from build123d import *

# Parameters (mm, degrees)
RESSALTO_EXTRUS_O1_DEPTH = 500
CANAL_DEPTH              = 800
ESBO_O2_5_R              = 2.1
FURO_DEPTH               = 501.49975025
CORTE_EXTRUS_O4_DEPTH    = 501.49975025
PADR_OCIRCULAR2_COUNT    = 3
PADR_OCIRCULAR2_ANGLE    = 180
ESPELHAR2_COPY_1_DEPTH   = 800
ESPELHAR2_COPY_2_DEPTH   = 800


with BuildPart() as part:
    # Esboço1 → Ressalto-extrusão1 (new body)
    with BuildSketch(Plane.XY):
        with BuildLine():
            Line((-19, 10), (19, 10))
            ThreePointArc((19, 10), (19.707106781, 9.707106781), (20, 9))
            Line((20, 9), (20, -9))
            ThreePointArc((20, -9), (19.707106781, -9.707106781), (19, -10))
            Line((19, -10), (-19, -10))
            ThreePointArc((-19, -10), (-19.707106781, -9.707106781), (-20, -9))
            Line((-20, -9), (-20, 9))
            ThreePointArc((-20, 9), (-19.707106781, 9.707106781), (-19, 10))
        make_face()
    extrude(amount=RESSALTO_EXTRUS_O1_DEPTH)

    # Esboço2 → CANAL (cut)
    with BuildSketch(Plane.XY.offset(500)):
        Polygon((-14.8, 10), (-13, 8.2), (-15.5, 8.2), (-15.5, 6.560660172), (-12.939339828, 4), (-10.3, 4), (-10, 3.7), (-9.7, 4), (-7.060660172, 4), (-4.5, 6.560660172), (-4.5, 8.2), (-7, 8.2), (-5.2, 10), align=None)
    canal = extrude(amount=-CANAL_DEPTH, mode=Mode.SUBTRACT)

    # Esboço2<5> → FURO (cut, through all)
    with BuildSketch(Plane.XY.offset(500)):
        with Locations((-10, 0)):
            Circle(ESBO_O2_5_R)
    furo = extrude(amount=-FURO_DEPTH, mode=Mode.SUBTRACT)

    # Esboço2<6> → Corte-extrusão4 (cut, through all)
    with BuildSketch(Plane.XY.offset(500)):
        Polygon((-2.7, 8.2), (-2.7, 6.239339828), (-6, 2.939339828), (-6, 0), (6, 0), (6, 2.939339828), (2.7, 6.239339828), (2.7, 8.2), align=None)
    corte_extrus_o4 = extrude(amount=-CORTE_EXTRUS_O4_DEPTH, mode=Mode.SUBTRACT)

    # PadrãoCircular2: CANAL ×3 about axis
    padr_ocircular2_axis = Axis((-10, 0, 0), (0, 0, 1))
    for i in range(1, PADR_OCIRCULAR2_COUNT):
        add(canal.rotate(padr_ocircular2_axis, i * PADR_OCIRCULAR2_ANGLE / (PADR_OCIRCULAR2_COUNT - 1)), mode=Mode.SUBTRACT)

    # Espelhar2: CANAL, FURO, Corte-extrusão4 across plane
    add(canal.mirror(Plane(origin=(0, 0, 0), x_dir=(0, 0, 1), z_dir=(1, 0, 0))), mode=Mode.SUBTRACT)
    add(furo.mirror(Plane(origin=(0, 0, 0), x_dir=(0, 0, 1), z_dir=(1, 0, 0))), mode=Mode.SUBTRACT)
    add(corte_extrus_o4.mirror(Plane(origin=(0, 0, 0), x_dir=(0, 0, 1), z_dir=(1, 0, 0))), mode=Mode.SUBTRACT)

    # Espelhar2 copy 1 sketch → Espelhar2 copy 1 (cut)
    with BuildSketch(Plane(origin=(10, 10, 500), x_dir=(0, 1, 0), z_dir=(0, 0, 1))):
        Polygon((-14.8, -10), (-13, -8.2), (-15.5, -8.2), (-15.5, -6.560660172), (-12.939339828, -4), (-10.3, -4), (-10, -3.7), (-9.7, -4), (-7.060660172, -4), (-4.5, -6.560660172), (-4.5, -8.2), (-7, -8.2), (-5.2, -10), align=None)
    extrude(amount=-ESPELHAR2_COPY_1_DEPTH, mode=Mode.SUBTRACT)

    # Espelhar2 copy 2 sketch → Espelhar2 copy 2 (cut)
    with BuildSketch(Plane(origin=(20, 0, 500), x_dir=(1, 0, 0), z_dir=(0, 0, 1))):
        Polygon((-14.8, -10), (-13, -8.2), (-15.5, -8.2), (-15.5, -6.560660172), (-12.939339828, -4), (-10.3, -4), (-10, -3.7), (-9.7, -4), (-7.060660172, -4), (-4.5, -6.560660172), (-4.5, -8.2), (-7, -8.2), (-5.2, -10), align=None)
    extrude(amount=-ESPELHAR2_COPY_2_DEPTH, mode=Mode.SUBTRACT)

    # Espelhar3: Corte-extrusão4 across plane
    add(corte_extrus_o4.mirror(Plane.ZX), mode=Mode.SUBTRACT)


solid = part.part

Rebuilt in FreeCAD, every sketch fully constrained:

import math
import FreeCAD as App
import Part
import Sketcher
from FreeCAD import Vector
Q = App.Units.Quantity

doc = App.newDocument("Part")
params = doc.addObject("Spreadsheet::Sheet", "Params")
for row, (alias, value) in enumerate([
    ("sketch1_radius", "1 mm"),
    ("sketch1_width", "38 mm"),
    ("sketch1_height", "18 mm"),
    ("pad1_length", "500 mm"),
    ("sketch2_width", "2.5 mm"),
    ("sketch2_width2", "9.6 mm"),
    ("pocket1_length", "800 mm"),
    ("sketch3_diameter", "4.2 mm"),
    ("sketch4_width", "12 mm"),
    ("sketch4_width2", "5.4 mm"),
    ("sketch5_height", "9.6 mm"),
    ("sketch5_height2", "2.5 mm"),
    ("pocket4_length", "800 mm"),
    ("sketch6_width", "9.6 mm"),
    ("sketch6_width2", "2.5 mm"),
    ("pocket5_length", "800 mm"),
], start=1):
    params.set(f"A{row}", alias)
    params.set(f"B{row}", "=" + value)
    params.setAlias(f"B{row}", alias)

body = doc.addObject("PartDesign::Body", "Body")

# Sketch on XY plane
sketch1 = body.newObject("Sketcher::SketchObject", "Sketch")
sketch1.AttachmentSupport = (doc.getObject("XY_Plane"), [""])
sketch1.MapMode = "FlatFace"
sketch1.addGeometry([
    Part.LineSegment(Vector(19, 10, 0), Vector(-19, 10, 0)),  # 0
    Part.ArcOfCircle(Part.Circle(Vector(-19, 9, 0), Vector(0, 0, 1), 1), math.radians(90), math.radians(180)),  # 1
    Part.LineSegment(Vector(-20, 9, 0), Vector(-20, -9, 0)),  # 2
    Part.ArcOfCircle(Part.Circle(Vector(-19, -9, 0), Vector(0, 0, 1), 1), math.radians(-180), math.radians(-90)),  # 3
    Part.LineSegment(Vector(-19, -10, 0), Vector(19, -10, 0)),  # 4
    Part.ArcOfCircle(Part.Circle(Vector(19, -9, 0), Vector(0, 0, 1), 1), math.radians(-90), math.radians(0)),  # 5
    Part.LineSegment(Vector(20, -9, 0), Vector(20, 9, 0)),  # 6
    Part.ArcOfCircle(Part.Circle(Vector(19, 9, 0), Vector(0, 0, 1), 1), math.radians(0), math.radians(90)),  # 7
], False)
sketch1.addConstraint([
    Sketcher.Constraint("Tangent", 0, 2, 1, 1),
    Sketcher.Constraint("Tangent", 1, 2, 2, 1),
    Sketcher.Constraint("Tangent", 2, 2, 3, 1),
    Sketcher.Constraint("Tangent", 3, 2, 4, 1),
    Sketcher.Constraint("Tangent", 4, 2, 5, 1),
    Sketcher.Constraint("Tangent", 5, 2, 6, 1),
    Sketcher.Constraint("Tangent", 6, 2, 7, 1),
    Sketcher.Constraint("Tangent", 7, 2, 0, 1),
    Sketcher.Constraint("Horizontal", 0),
    Sketcher.Constraint("Vertical", 2),
    Sketcher.Constraint("Horizontal", 4),
    Sketcher.Constraint("Vertical", 6),
    Sketcher.Constraint("Equal", 1, 3),
    Sketcher.Constraint("Equal", 3, 5),
    Sketcher.Constraint("Equal", 5, 7),
    Sketcher.Constraint("Symmetric", 1, 3, 5, 3, -1, 1),
    Sketcher.Constraint("Radius", 1, Q("1 mm")),
    Sketcher.Constraint("DistanceX", 0, 2, 0, 1, Q("38 mm")),
    Sketcher.Constraint("DistanceY", 2, 2, 2, 1, Q("18 mm")),
])
sketch1.setExpression("Constraints[16]", "Params.sketch1_radius")
sketch1.setExpression("Constraints[17]", "Params.sketch1_width")
sketch1.setExpression("Constraints[18]", "Params.sketch1_height")
pad1 = body.newObject("PartDesign::Pad", "Pad")
pad1.Profile = sketch1
pad1.setExpression("Length", "Params.pad1_length")

# Sketch on XY plane
sketch2 = body.newObject("Sketcher::SketchObject", "Sketch001")
sketch2.AttachmentSupport = (doc.getObject("XY_Plane"), [""])
sketch2.MapMode = "FlatFace"
sketch2.AttachmentOffset = App.Placement(Vector(0, 0, 500), App.Rotation())
sketch2.addGeometry([
    Part.LineSegment(Vector(-14.8, 10, 0), Vector(-13, 8.2, 0)),  # 0
    Part.LineSegment(Vector(-13, 8.2, 0), Vector(-15.5, 8.2, 0)),  # 1
    Part.LineSegment(Vector(-15.5, 8.2, 0), Vector(-15.5, 6.56066, 0)),  # 2
    Part.LineSegment(Vector(-15.5, 6.56066, 0), Vector(-12.93934, 4, 0)),  # 3
    Part.LineSegment(Vector(-12.93934, 4, 0), Vector(-10.3, 4, 0)),  # 4
    Part.LineSegment(Vector(-10.3, 4, 0), Vector(-10, 3.7, 0)),  # 5
    Part.LineSegment(Vector(-10, 3.7, 0), Vector(-9.7, 4, 0)),  # 6
    Part.LineSegment(Vector(-9.7, 4, 0), Vector(-7.06066, 4, 0)),  # 7
    Part.LineSegment(Vector(-7.06066, 4, 0), Vector(-4.5, 6.56066, 0)),  # 8
    Part.LineSegment(Vector(-4.5, 6.56066, 0), Vector(-4.5, 8.2, 0)),  # 9
    Part.LineSegment(Vector(-4.5, 8.2, 0), Vector(-7, 8.2, 0)),  # 10
    Part.LineSegment(Vector(-7, 8.2, 0), Vector(-5.2, 10, 0)),  # 11
    Part.LineSegment(Vector(-5.2, 10, 0), Vector(-14.8, 10, 0)),  # 12
], False)
sketch2.addConstraint([
    Sketcher.Constraint("Coincident", 0, 2, 1, 1),
    Sketcher.Constraint("Coincident", 1, 2, 2, 1),
    Sketcher.Constraint("Coincident", 2, 2, 3, 1),
    Sketcher.Constraint("Coincident", 3, 2, 4, 1),
    Sketcher.Constraint("Coincident", 4, 2, 5, 1),
    Sketcher.Constraint("Coincident", 5, 2, 6, 1),
    Sketcher.Constraint("Coincident", 6, 2, 7, 1),
    Sketcher.Constraint("Coincident", 7, 2, 8, 1),
    Sketcher.Constraint("Coincident", 8, 2, 9, 1),
    Sketcher.Constraint("Coincident", 9, 2, 10, 1),
    Sketcher.Constraint("Coincident", 10, 2, 11, 1),
    Sketcher.Constraint("Coincident", 11, 2, 12, 1),
    Sketcher.Constraint("Coincident", 12, 2, 0, 1),
    Sketcher.Constraint("Horizontal", 1),
    Sketcher.Constraint("Vertical", 2),
    Sketcher.Constraint("Horizontal", 4),
    Sketcher.Constraint("Horizontal", 7),
    Sketcher.Constraint("Vertical", 9),
    Sketcher.Constraint("Horizontal", 10),
    Sketcher.Constraint("Horizontal", 12),
    Sketcher.Constraint("Parallel", 0, 3),
    Sketcher.Constraint("Parallel", 3, 5),
    Sketcher.Constraint("Perpendicular", 5, 6),
    Sketcher.Constraint("Parallel", 6, 8),
    Sketcher.Constraint("Parallel", 8, 11),
    Sketcher.Constraint("Horizontal", 4, 2, 6, 2),
    Sketcher.Constraint("Horizontal", 2, 2, 8, 2),
    Sketcher.Constraint("Horizontal", 1, 2, 9, 2),
    Sketcher.Constraint("Equal", 4, 7),
    Sketcher.Constraint("Equal", 1, 10),
    Sketcher.Constraint("Equal", 5, 6),
    Sketcher.Constraint("DistanceX", 1, 2, 1, 1, Q("2.5 mm")),
    Sketcher.Constraint("DistanceX", 12, 2, 12, 1, Q("9.6 mm")),
    Sketcher.Constraint("DistanceX", 0, 2, -1, 1, Q("13 mm")),
    Sketcher.Constraint("DistanceY", -1, 1, 3, 2, Q("4 mm")),
    Sketcher.Constraint("DistanceX", 5, 2, -1, 1, Q("10 mm")),
    Sketcher.Constraint("DistanceY", -1, 1, 11, 2, Q("10 mm")),
    Sketcher.Constraint("DistanceX", 4, 2, -1, 1, Q("10.3 mm")),
    Sketcher.Constraint("DistanceX", 4, 1, 4, 2, Q("2.63934 mm")),
])
sketch2.setExpression("Constraints[31]", "Params.sketch2_width")
sketch2.setExpression("Constraints[32]", "Params.sketch2_width2")
pocket1 = body.newObject("PartDesign::Pocket", "Pocket")
pocket1.Profile = sketch2
pocket1.setExpression("Length", "Params.pocket1_length")

# Sketch on XY plane
sketch3 = body.newObject("Sketcher::SketchObject", "Sketch002")
sketch3.AttachmentSupport = (doc.getObject("XY_Plane"), [""])
sketch3.MapMode = "FlatFace"
sketch3.AttachmentOffset = App.Placement(Vector(0, 0, 500), App.Rotation())
sketch3.addGeometry(Part.Circle(Vector(-10, 0, 0), Vector(0, 0, 1), 2.1), False)
sketch3.addConstraint([
    Sketcher.Constraint("PointOnObject", 0, 3, -1),
    Sketcher.Constraint("Diameter", 0, Q("4.2 mm")),
    Sketcher.Constraint("DistanceX", 0, 3, -1, 1, Q("10 mm")),
])
sketch3.setExpression("Constraints[1]", "Params.sketch3_diameter")
pocket2 = body.newObject("PartDesign::Pocket", "Pocket001")
pocket2.Profile = sketch3
pocket2.Type = "ThroughAll"

# Sketch on XY plane
sketch4 = body.newObject("Sketcher::SketchObject", "Sketch003")
sketch4.AttachmentSupport = (doc.getObject("XY_Plane"), [""])
sketch4.MapMode = "FlatFace"
sketch4.AttachmentOffset = App.Placement(Vector(0, 0, 500), App.Rotation())
sketch4.addGeometry([
    Part.LineSegment(Vector(-2.7, 8.2, 0), Vector(-2.7, 6.23934, 0)),  # 0
    Part.LineSegment(Vector(-2.7, 6.23934, 0), Vector(-6, 2.93934, 0)),  # 1
    Part.LineSegment(Vector(-6, 2.93934, 0), Vector(-6, 0, 0)),  # 2
    Part.LineSegment(Vector(-6, 0, 0), Vector(6, 0, 0)),  # 3
    Part.LineSegment(Vector(6, 0, 0), Vector(6, 2.93934, 0)),  # 4
    Part.LineSegment(Vector(6, 2.93934, 0), Vector(2.7, 6.23934, 0)),  # 5
    Part.LineSegment(Vector(2.7, 6.23934, 0), Vector(2.7, 8.2, 0)),  # 6
    Part.LineSegment(Vector(2.7, 8.2, 0), Vector(-2.7, 8.2, 0)),  # 7
], False)
sketch4.addConstraint([
    Sketcher.Constraint("Coincident", 0, 2, 1, 1),
    Sketcher.Constraint("Coincident", 1, 2, 2, 1),
    Sketcher.Constraint("Coincident", 2, 2, 3, 1),
    Sketcher.Constraint("Coincident", 3, 2, 4, 1),
    Sketcher.Constraint("Coincident", 4, 2, 5, 1),
    Sketcher.Constraint("Coincident", 5, 2, 6, 1),
    Sketcher.Constraint("Coincident", 6, 2, 7, 1),
    Sketcher.Constraint("Coincident", 7, 2, 0, 1),
    Sketcher.Constraint("Vertical", 0),
    Sketcher.Constraint("Vertical", 2),
    Sketcher.Constraint("Horizontal", 3),
    Sketcher.Constraint("Vertical", 4),
    Sketcher.Constraint("Vertical", 6),
    Sketcher.Constraint("Horizontal", 7),
    Sketcher.Constraint("Symmetric", 2, 2, 3, 2, -1, 1),
    Sketcher.Constraint("Symmetric", 0, 2, 5, 2, -2),
    Sketcher.Constraint("Perpendicular", 1, 5),
    Sketcher.Constraint("Horizontal", 1, 2, 4, 2),
    Sketcher.Constraint("DistanceX", 3, 1, 3, 2, Q("12 mm")),
    Sketcher.Constraint("DistanceX", 7, 2, 7, 1, Q("5.4 mm")),
    Sketcher.Constraint("DistanceY", -1, 1, 6, 2, Q("8.2 mm")),
    Sketcher.Constraint("DistanceY", 0, 2, 0, 1, Q("1.96066 mm")),
])
sketch4.setExpression("Constraints[18]", "Params.sketch4_width")
sketch4.setExpression("Constraints[19]", "Params.sketch4_width2")
pocket3 = body.newObject("PartDesign::Pocket", "Pocket002")
pocket3.Profile = sketch4
pocket3.Type = "ThroughAll"
doc.recompute()

datumline = body.newObject("PartDesign::Line", "DatumLine")
datumline.Placement = App.Placement(Vector(-10, 0, 0), App.Rotation(Vector(0, 0, 1), Vector(0, 0, 1)))
polarpattern = body.newObject("PartDesign::PolarPattern", "PolarPattern")
polarpattern.Originals = [pocket1]
polarpattern.Axis = (datumline, [""])
polarpattern.Angle = 180
polarpattern.Occurrences = 3
body.Tip = polarpattern
doc.recompute()

mirrored = body.newObject("PartDesign::Mirrored", "Mirrored")
mirrored.Originals = [pocket1, pocket2, pocket3]
mirrored.MirrorPlane = (doc.getObject("YZ_Plane"), [""])
body.Tip = mirrored

# Sketch on XY plane
sketch5 = body.newObject("Sketcher::SketchObject", "Sketch004")
sketch5.AttachmentSupport = (doc.getObject("XY_Plane"), [""])
sketch5.MapMode = "FlatFace"
sketch5.AttachmentOffset = App.Placement(Vector(0, 0, 500), App.Rotation())
sketch5.addGeometry([
    Part.LineSegment(Vector(18.2, -3, 0), Vector(20, -4.8, 0)),  # 0
    Part.LineSegment(Vector(20, -4.8, 0), Vector(20, 4.8, 0)),  # 1
    Part.LineSegment(Vector(20, 4.8, 0), Vector(18.2, 3, 0)),  # 2
    Part.LineSegment(Vector(18.2, 3, 0), Vector(18.2, 5.5, 0)),  # 3
    Part.LineSegment(Vector(18.2, 5.5, 0), Vector(16.56066, 5.5, 0)),  # 4
    Part.LineSegment(Vector(16.56066, 5.5, 0), Vector(14, 2.93934, 0)),  # 5
    Part.LineSegment(Vector(14, 2.93934, 0), Vector(14, 0.3, 0)),  # 6
    Part.LineSegment(Vector(14, 0.3, 0), Vector(13.7, 0, 0)),  # 7
    Part.LineSegment(Vector(13.7, 0, 0), Vector(14, -0.3, 0)),  # 8
    Part.LineSegment(Vector(14, -0.3, 0), Vector(14, -2.93934, 0)),  # 9
    Part.LineSegment(Vector(14, -2.93934, 0), Vector(16.56066, -5.5, 0)),  # 10
    Part.LineSegment(Vector(16.56066, -5.5, 0), Vector(18.2, -5.5, 0)),  # 11
    Part.LineSegment(Vector(18.2, -5.5, 0), Vector(18.2, -3, 0)),  # 12
], False)
sketch5.addConstraint([
    Sketcher.Constraint("Coincident", 0, 2, 1, 1),
    Sketcher.Constraint("Coincident", 1, 2, 2, 1),
    Sketcher.Constraint("Coincident", 2, 2, 3, 1),
    Sketcher.Constraint("Coincident", 3, 2, 4, 1),
    Sketcher.Constraint("Coincident", 4, 2, 5, 1),
    Sketcher.Constraint("Coincident", 5, 2, 6, 1),
    Sketcher.Constraint("Coincident", 6, 2, 7, 1),
    Sketcher.Constraint("Coincident", 7, 2, 8, 1),
    Sketcher.Constraint("Coincident", 8, 2, 9, 1),
    Sketcher.Constraint("Coincident", 9, 2, 10, 1),
    Sketcher.Constraint("Coincident", 10, 2, 11, 1),
    Sketcher.Constraint("Coincident", 11, 2, 12, 1),
    Sketcher.Constraint("Coincident", 12, 2, 0, 1),
    Sketcher.Constraint("Vertical", 1),
    Sketcher.Constraint("Vertical", 3),
    Sketcher.Constraint("Horizontal", 4),
    Sketcher.Constraint("Vertical", 6),
    Sketcher.Constraint("Vertical", 9),
    Sketcher.Constraint("Horizontal", 11),
    Sketcher.Constraint("Vertical", 12),
    Sketcher.Constraint("Symmetric", 6, 2, 8, 2, -1),
    Sketcher.Constraint("Symmetric", 4, 2, 10, 2, -1),
    Sketcher.Constraint("Symmetric", 2, 2, 12, 2, -1),
    Sketcher.Constraint("PointOnObject", 7, 2, -1),
    Sketcher.Constraint("Perpendicular", 0, 2),
    Sketcher.Constraint("Parallel", 2, 5),
    Sketcher.Constraint("Parallel", 5, 7),
    Sketcher.Constraint("Perpendicular", 7, 8),
    Sketcher.Constraint("Parallel", 8, 10),
    Sketcher.Constraint("DistanceY", 1, 1, 1, 2, Q("9.6 mm")),
    Sketcher.Constraint("DistanceY", 3, 1, 3, 2, Q("2.5 mm")),
    Sketcher.Constraint("DistanceX", -1, 1, 0, 2, Q("20 mm")),
    Sketcher.Constraint("DistanceY", -1, 1, 2, 2, Q("3 mm")),
    Sketcher.Constraint("DistanceX", -1, 1, 5, 2, Q("14 mm")),
    Sketcher.Constraint("DistanceY", -1, 1, 6, 2, Q("0.3 mm")),
    Sketcher.Constraint("DistanceX", 4, 2, 4, 1, Q("1.63934 mm")),
])
sketch5.setExpression("Constraints[29]", "Params.sketch5_height")
sketch5.setExpression("Constraints[30]", "Params.sketch5_height2")
pocket4 = body.newObject("PartDesign::Pocket", "Pocket003")
pocket4.Profile = sketch5
pocket4.setExpression("Length", "Params.pocket4_length")

# Sketch on XY plane
sketch6 = body.newObject("Sketcher::SketchObject", "Sketch005")
sketch6.AttachmentSupport = (doc.getObject("XY_Plane"), [""])
sketch6.MapMode = "FlatFace"
sketch6.AttachmentOffset = App.Placement(Vector(0, 0, 500), App.Rotation())
sketch6.addGeometry([
    Part.LineSegment(Vector(7, -8.2, 0), Vector(5.2, -10, 0)),  # 0
    Part.LineSegment(Vector(5.2, -10, 0), Vector(14.8, -10, 0)),  # 1
    Part.LineSegment(Vector(14.8, -10, 0), Vector(13, -8.2, 0)),  # 2
    Part.LineSegment(Vector(13, -8.2, 0), Vector(15.5, -8.2, 0)),  # 3
    Part.LineSegment(Vector(15.5, -8.2, 0), Vector(15.5, -6.56066, 0)),  # 4
    Part.LineSegment(Vector(15.5, -6.56066, 0), Vector(12.93934, -4, 0)),  # 5
    Part.LineSegment(Vector(12.93934, -4, 0), Vector(10.3, -4, 0)),  # 6
    Part.LineSegment(Vector(10.3, -4, 0), Vector(10, -3.7, 0)),  # 7
    Part.LineSegment(Vector(10, -3.7, 0), Vector(9.7, -4, 0)),  # 8
    Part.LineSegment(Vector(9.7, -4, 0), Vector(7.06066, -4, 0)),  # 9
    Part.LineSegment(Vector(7.06066, -4, 0), Vector(4.5, -6.56066, 0)),  # 10
    Part.LineSegment(Vector(4.5, -6.56066, 0), Vector(4.5, -8.2, 0)),  # 11
    Part.LineSegment(Vector(4.5, -8.2, 0), Vector(7, -8.2, 0)),  # 12
], False)
sketch6.addConstraint([
    Sketcher.Constraint("Coincident", 0, 2, 1, 1),
    Sketcher.Constraint("Coincident", 1, 2, 2, 1),
    Sketcher.Constraint("Coincident", 2, 2, 3, 1),
    Sketcher.Constraint("Coincident", 3, 2, 4, 1),
    Sketcher.Constraint("Coincident", 4, 2, 5, 1),
    Sketcher.Constraint("Coincident", 5, 2, 6, 1),
    Sketcher.Constraint("Coincident", 6, 2, 7, 1),
    Sketcher.Constraint("Coincident", 7, 2, 8, 1),
    Sketcher.Constraint("Coincident", 8, 2, 9, 1),
    Sketcher.Constraint("Coincident", 9, 2, 10, 1),
    Sketcher.Constraint("Coincident", 10, 2, 11, 1),
    Sketcher.Constraint("Coincident", 11, 2, 12, 1),
    Sketcher.Constraint("Coincident", 12, 2, 0, 1),
    Sketcher.Constraint("Horizontal", 1),
    Sketcher.Constraint("Horizontal", 3),
    Sketcher.Constraint("Vertical", 4),
    Sketcher.Constraint("Horizontal", 6),
    Sketcher.Constraint("Horizontal", 9),
    Sketcher.Constraint("Vertical", 11),
    Sketcher.Constraint("Horizontal", 12),
    Sketcher.Constraint("Perpendicular", 0, 2),
    Sketcher.Constraint("Parallel", 2, 5),
    Sketcher.Constraint("Parallel", 5, 7),
    Sketcher.Constraint("Perpendicular", 7, 8),
    Sketcher.Constraint("Parallel", 8, 10),
    Sketcher.Constraint("Horizontal", 6, 2, 8, 2),
    Sketcher.Constraint("Horizontal", 4, 2, 10, 2),
    Sketcher.Constraint("Horizontal", 3, 2, 11, 2),
    Sketcher.Constraint("Equal", 6, 9),
    Sketcher.Constraint("Equal", 3, 12),
    Sketcher.Constraint("Equal", 0, 2),
    Sketcher.Constraint("DistanceX", 1, 1, 1, 2, Q("9.6 mm")),
    Sketcher.Constraint("DistanceX", 3, 1, 3, 2, Q("2.5 mm")),
    Sketcher.Constraint("DistanceY", 0, 2, -1, 1, Q("10 mm")),
    Sketcher.Constraint("DistanceX", -1, 1, 2, 2, Q("13 mm")),
    Sketcher.Constraint("DistanceY", 5, 2, -1, 1, Q("4 mm")),
    Sketcher.Constraint("DistanceX", -1, 1, 7, 2, Q("10 mm")),
    Sketcher.Constraint("DistanceX", -1, 1, 6, 2, Q("10.3 mm")),
    Sketcher.Constraint("DistanceX", 6, 2, 6, 1, Q("2.63934 mm")),
])
sketch6.setExpression("Constraints[31]", "Params.sketch6_width")
sketch6.setExpression("Constraints[32]", "Params.sketch6_width2")
pocket5 = body.newObject("PartDesign::Pocket", "Pocket004")
pocket5.Profile = sketch6
pocket5.setExpression("Length", "Params.pocket5_length")
doc.recompute()

mirrored2 = body.newObject("PartDesign::Mirrored", "Mirrored001")
mirrored2.Originals = [pocket3]
mirrored2.MirrorPlane = (doc.getObject("XZ_Plane"), [""])
body.Tip = mirrored2

doc.recompute()
